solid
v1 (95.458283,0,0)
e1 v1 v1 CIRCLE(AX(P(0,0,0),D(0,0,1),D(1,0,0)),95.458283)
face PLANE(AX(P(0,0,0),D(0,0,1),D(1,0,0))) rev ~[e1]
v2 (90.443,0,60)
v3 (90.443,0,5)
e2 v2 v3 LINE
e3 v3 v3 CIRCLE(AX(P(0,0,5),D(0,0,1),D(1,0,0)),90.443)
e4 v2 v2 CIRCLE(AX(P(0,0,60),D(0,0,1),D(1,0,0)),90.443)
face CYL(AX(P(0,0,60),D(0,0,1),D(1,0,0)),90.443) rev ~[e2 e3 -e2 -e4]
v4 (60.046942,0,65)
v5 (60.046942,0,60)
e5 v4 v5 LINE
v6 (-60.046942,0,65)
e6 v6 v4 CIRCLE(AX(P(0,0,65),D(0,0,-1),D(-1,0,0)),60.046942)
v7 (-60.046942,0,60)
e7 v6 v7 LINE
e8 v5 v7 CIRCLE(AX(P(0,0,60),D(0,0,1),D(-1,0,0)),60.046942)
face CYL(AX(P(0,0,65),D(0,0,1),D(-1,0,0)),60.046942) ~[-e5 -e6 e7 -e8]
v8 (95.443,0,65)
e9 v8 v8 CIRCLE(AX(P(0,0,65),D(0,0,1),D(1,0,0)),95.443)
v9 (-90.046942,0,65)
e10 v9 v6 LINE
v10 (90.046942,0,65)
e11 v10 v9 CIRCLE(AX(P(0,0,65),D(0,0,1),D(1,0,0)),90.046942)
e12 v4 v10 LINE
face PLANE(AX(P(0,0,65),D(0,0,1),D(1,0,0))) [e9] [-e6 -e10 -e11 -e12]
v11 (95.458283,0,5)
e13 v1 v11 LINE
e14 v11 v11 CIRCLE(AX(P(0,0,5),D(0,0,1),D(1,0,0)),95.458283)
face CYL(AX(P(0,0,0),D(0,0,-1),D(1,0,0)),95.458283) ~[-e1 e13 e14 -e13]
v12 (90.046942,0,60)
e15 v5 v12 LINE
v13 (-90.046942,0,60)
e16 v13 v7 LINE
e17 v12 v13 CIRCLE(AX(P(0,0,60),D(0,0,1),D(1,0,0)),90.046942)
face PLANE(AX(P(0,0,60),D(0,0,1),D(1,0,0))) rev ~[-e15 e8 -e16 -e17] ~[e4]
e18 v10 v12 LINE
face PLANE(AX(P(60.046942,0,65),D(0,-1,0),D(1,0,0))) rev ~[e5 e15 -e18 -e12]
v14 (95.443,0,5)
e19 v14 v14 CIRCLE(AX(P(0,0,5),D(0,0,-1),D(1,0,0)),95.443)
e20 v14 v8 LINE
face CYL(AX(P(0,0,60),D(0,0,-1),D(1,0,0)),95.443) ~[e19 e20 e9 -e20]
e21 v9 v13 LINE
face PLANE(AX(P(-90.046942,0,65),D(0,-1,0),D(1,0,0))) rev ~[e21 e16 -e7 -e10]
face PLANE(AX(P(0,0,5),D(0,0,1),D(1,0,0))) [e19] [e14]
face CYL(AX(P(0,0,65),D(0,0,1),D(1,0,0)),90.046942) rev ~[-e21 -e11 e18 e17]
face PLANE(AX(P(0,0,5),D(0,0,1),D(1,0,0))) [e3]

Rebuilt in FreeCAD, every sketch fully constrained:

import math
import FreeCAD as App
import Part
import Sketcher
from FreeCAD import Vector
Q = App.Units.Quantity

doc = App.newDocument("Part")
body = doc.addObject("PartDesign::Body", "Body")

# Sketch on XY plane
sketch1 = body.newObject("Sketcher::SketchObject", "Sketch")
sketch1.AttachmentSupport = (doc.getObject("XY_Plane"), [""])
sketch1.MapMode = "FlatFace"
sketch1.addGeometry(Part.Circle(Vector(0, 0, 0), Vector(0, 0, 1), 95), False)
sketch1.addConstraint([
    Sketcher.Constraint("Coincident", 0, 3, -1, 1),
    Sketcher.Constraint("Diameter", 0, Q("190.886 mm")),
])
pad1 = body.newObject("PartDesign::Pad", "Pad")
pad1.Profile = sketch1
pad1.Length = 60

# Sketch on XY plane
sketch2 = body.newObject("Sketcher::SketchObject", "Sketch001")
sketch2.AttachmentSupport = (doc.getObject("XY_Plane"), [""])
sketch2.MapMode = "FlatFace"
sketch2.AttachmentOffset = App.Placement(Vector(0, 0, 60), App.Rotation())
sketch2.addGeometry(Part.Circle(Vector(0, 0, 0), Vector(0, 0, 1), 90), False)
sketch2.addConstraint([
    Sketcher.Constraint("Coincident", 0, 3, -1, 1),
    Sketcher.Constraint("Diameter", 0, Q("180.886 mm")),
])
pocket1 = body.newObject("PartDesign::Pocket", "Pocket")
pocket1.Profile = sketch2
pocket1.Length = 147

# Sketch on XY plane
sketch3 = body.newObject("Sketcher::SketchObject", "Sketch002")
sketch3.AttachmentSupport = (doc.getObject("XY_Plane"), [""])
sketch3.MapMode = "FlatFace"
sketch3.AttachmentOffset = App.Placement(Vector(0, 0, 60), App.Rotation())
sketch3.addGeometry(Part.Circle(Vector(0, 0, 0), Vector(0, 0, 1), 95), False)
sketch3.addConstraint([
    Sketcher.Constraint("Coincident", 0, 3, -1, 1),
    Sketcher.Constraint("Diameter", 0, Q("190.886 mm")),
])
pad2 = body.newObject("PartDesign::Pad", "Pad001")
pad2.Profile = sketch3
pad2.Length = 5

# Sketch on XY plane
sketch4 = body.newObject("Sketcher::SketchObject", "Sketch003")
sketch4.AttachmentSupport = (doc.getObject("XY_Plane"), [""])
sketch4.MapMode = "FlatFace"
sketch4.addGeometry(Part.Circle(Vector(0, 0, 0), Vector(0, 0, 1), 95), False)
sketch4.addConstraint([
    Sketcher.Constraint("Coincident", 0, 3, -1, 1),
    Sketcher.Constraint("Diameter", 0, Q("190.916566 mm")),
])
pad3 = body.newObject("PartDesign::Pad", "Pad002")
pad3.Profile = sketch4
pad3.Length = 5

# Sketch on XY plane
sketch5 = body.newObject("Sketcher::SketchObject", "Sketch004")
sketch5.AttachmentSupport = (doc.getObject("XY_Plane"), [""])
sketch5.MapMode = "FlatFace"
sketch5.AttachmentOffset = App.Placement(Vector(0, 0, 65), App.Rotation())
sketch5.addGeometry([
    Part.ArcOfCircle(Part.Circle(Vector(0, 0, 0), Vector(0, 0, 1), 90), math.radians(0), math.radians(180)),
    Part.LineSegment(Vector(-90, 0, 0), Vector(-60, 0, 0)),
    Part.ArcOfCircle(Part.Circle(Vector(0, 0, 0), Vector(0, 0, 1), 60), math.radians(0), math.radians(180)),
    Part.LineSegment(Vector(60, 0, 0), Vector(90, 0, 0)),
], False)
sketch5.addConstraint([
    Sketcher.Constraint("Coincident", 0, 2, 1, 1),
    Sketcher.Constraint("Coincident", 1, 2, 2, 2),
    Sketcher.Constraint("Coincident", 2, 1, 3, 1),
    Sketcher.Constraint("Coincident", 3, 2, 0, 1),
    Sketcher.Constraint("Horizontal", 1),
    Sketcher.Constraint("Horizontal", 3),
    Sketcher.Constraint("Coincident", 0, 3, -1, 1),
    Sketcher.Constraint("Coincident", 2, 3, -1, 1),
    Sketcher.Constraint("PointOnObject", 0, 2, -1),
    Sketcher.Constraint("PointOnObject", 2, 1, -1),
    Sketcher.Constraint("DistanceX", 1, 1, 1, 2, Q("30 mm")),
    Sketcher.Constraint("Radius", 0, Q("90.046942 mm")),
])
pocket2 = body.newObject("PartDesign::Pocket", "Pocket001")
pocket2.Profile = sketch5
pocket2.Length = 25

doc.recompute()
